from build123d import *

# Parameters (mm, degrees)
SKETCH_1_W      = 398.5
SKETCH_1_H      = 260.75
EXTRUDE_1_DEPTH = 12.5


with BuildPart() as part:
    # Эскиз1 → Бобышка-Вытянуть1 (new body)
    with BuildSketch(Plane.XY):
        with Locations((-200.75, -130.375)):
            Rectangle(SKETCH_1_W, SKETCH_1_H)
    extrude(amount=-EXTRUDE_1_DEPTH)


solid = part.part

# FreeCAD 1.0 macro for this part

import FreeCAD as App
import Part
import Sketcher

V = App.Vector


def add_polygon(sketch, points):
    """Adds a closed chain of lines whose ends are joined by coincident constraints."""
    first, n = sketch.GeometryCount, len(points)
    for a, b in zip(points, points[1:] + points[:1]):
        sketch.addGeometry(Part.LineSegment(App.Vector(*a, 0), App.Vector(*b, 0)), False)
    for i in range(n):
        sketch.addConstraint(Sketcher.Constraint("Coincident", first + i, 2, first + (i + 1) % n, 1))

doc = App.newDocument("Part")
body = doc.addObject("PartDesign::Body", "Body")

sketch1 = body.newObject("Sketcher::SketchObject", "Sketch")
sketch1.AttachmentSupport = (doc.getObject("XY_Plane"), [""])
sketch1.MapMode = "FlatFace"
add_polygon(sketch1, [(-400, 0), (-400, -260.75), (-1.5, -260.75), (-1.5, 0)])
sketch1.addConstraint(Sketcher.Constraint("Vertical", 0))
sketch1.addConstraint(Sketcher.Constraint("Horizontal", 1))
sketch1.addConstraint(Sketcher.Constraint("Vertical", 2))
sketch1.addConstraint(Sketcher.Constraint("Horizontal", 3))
sketch1.addConstraint(Sketcher.Constraint("PointOnObject", 2, 2, -1))
sketch1.addConstraint(Sketcher.Constraint("DistanceX", 1, 1, 1, 2, 398.5))
sketch1.addConstraint(Sketcher.Constraint("DistanceX", 0, 2, -1, 1, 400.0))
sketch1.addConstraint(Sketcher.Constraint("DistanceY", 0, 2, 0, 1, 260.75))
pad1 = body.newObject("PartDesign::Pad", "Pad")
pad1.Profile = sketch1
pad1.Length = 12.5
pad1.Reversed = True

doc.recompute()
